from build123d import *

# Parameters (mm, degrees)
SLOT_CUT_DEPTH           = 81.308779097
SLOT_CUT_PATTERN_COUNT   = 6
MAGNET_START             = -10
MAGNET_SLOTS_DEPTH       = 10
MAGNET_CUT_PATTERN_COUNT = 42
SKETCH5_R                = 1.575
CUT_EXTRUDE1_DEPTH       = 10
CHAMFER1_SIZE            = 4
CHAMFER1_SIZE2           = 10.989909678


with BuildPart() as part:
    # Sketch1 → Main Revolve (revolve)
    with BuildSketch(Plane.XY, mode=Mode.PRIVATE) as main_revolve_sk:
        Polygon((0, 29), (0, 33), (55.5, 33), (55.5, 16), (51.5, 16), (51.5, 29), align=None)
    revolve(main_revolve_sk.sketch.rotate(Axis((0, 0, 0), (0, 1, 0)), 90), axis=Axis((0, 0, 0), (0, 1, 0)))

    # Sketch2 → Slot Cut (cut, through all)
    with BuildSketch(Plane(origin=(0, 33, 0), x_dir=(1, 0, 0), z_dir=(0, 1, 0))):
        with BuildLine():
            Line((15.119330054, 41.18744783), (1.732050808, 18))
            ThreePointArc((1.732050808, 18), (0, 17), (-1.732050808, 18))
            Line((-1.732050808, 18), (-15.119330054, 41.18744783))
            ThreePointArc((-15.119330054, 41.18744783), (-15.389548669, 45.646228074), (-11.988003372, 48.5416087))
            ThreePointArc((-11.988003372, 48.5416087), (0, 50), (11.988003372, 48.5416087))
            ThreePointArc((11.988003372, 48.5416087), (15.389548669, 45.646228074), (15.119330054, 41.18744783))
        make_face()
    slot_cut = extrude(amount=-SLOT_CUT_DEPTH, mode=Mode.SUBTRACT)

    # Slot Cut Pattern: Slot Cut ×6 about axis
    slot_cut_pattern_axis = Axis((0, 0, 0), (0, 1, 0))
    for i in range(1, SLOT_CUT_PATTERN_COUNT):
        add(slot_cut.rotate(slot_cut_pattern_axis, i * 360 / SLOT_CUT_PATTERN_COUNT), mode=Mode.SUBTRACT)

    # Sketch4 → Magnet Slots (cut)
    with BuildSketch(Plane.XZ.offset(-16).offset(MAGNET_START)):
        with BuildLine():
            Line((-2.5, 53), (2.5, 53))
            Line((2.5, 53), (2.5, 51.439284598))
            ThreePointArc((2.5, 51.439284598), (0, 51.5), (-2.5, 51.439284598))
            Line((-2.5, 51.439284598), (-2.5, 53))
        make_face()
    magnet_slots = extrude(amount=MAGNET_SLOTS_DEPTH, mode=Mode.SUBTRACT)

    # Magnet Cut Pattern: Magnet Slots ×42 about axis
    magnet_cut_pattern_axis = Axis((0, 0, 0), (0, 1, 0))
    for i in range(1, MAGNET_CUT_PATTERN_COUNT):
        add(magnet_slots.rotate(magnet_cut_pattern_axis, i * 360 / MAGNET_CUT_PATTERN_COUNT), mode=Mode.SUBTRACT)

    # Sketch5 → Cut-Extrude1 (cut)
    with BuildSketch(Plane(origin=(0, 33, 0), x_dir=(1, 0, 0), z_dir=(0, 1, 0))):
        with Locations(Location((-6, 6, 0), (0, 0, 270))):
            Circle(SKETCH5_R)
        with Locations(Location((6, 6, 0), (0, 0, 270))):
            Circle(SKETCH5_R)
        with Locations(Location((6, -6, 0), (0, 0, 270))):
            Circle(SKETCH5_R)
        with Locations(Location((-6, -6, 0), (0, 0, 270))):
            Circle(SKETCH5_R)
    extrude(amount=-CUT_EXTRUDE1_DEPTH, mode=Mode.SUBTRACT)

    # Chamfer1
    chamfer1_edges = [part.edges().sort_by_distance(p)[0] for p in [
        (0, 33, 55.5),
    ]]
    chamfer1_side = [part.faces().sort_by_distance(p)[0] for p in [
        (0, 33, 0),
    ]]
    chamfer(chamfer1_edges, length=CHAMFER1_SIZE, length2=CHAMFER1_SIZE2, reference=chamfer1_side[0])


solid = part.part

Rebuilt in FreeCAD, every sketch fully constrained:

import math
import FreeCAD as App
import Part
import Sketcher
Q = App.Units.Quantity


def edges_at(feature, points):
    """Names of the edges that pass closest to the given points."""
    edges = feature.Shape.Edges
    near = lambda p: min(range(len(edges)), key=lambda i: edges[i].distToShape(Part.Vertex(*p))[0])
    return sorted({f"Edge{near(p) + 1}" for p in points})


def add_polygon(sketch, points):
    """Adds a closed chain of lines whose ends are joined by coincident constraints."""
    first, n = sketch.GeometryCount, len(points)
    for a, b in zip(points, points[1:] + points[:1]):
        sketch.addGeometry(Part.LineSegment(App.Vector(*a, 0), App.Vector(*b, 0)), False)
    for i in range(n):
        sketch.addConstraint(Sketcher.Constraint("Coincident", first + i, 2, first + (i + 1) % n, 1))

doc = App.newDocument("Part")
params = doc.addObject("Spreadsheet::Sheet", "Params")
for row, (alias, value) in enumerate([
    ("sketch1_width", "4 mm"),
    ("sketch1_height", "13 mm"),
    ("sketch1_width2", "51.5 mm"),
    ("revolution_angle", "360 deg"),
    ("sketch2_radius", "5 mm"),
    ("sketch2_radius2", "50 mm"),
    ("sketch2_radius3", "2 mm"),
    ("sketch3_radius", "51.5 mm"),
    ("sketch3_width", "5 mm"),
    ("pocket2_length", "10 mm"),
    ("sketch4_diameter", "3.15 mm"),
    ("pocket3_length", "10 mm"),
    ("chamfer_size", "4 mm"),
    ("chamfer_size2", "10.98991 mm"),
], start=1):
    params.set(f"A{row}", alias)
    params.set(f"B{row}", "=" + value)
    params.setAlias(f"B{row}", alias)

body = doc.addObject("PartDesign::Body", "Body")

# Sketch on XY plane
sketch1 = body.newObject("Sketcher::SketchObject", "Sketch")
sketch1.AttachmentSupport = (doc.getObject("XY_Plane"), [""])
sketch1.MapMode = "FlatFace"
add_polygon(sketch1, [(0, 33), (0, 29), (51.5, 29), (51.5, 16), (55.5, 16), (55.5, 33)])  # lines 0-5
sketch1.addConstraint([
    Sketcher.Constraint("Vertical", 0),
    Sketcher.Constraint("Horizontal", 1),
    Sketcher.Constraint("Vertical", 2),
    Sketcher.Constraint("Horizontal", 3),
    Sketcher.Constraint("Vertical", 4),
    Sketcher.Constraint("Horizontal", 5),
    Sketcher.Constraint("PointOnObject", 0, 2, -2),
    Sketcher.Constraint("Equal", 3, 0),
    Sketcher.Constraint("DistanceX", 3, 1, 3, 2, 4.0),
    Sketcher.Constraint("DistanceY", 2, 2, 2, 1, 13.0),
    Sketcher.Constraint("DistanceX", 1, 1, 1, 2, 51.5),
    Sketcher.Constraint("DistanceY", -1, 1, 0, 2, 29.0),
])
sketch1.setExpression("Constraints[14]", "Params.sketch1_width")
sketch1.setExpression("Constraints[15]", "Params.sketch1_height")
sketch1.setExpression("Constraints[16]", "Params.sketch1_width2")
revolution = body.newObject("PartDesign::Revolution", "Revolution")
revolution.Profile = sketch1
revolution.ReferenceAxis = (sketch1, ["V_Axis"])
revolution.setExpression("Angle", "Params.revolution_angle")

# Sketch on XZ plane
sketch2 = body.newObject("Sketcher::SketchObject", "Sketch001")
sketch2.AttachmentSupport = (doc.getObject("XZ_Plane"), [""])
sketch2.MapMode = "FlatFace"
sketch2.AttachmentOffset = App.Placement(App.Vector(0, 0, -33), App.Rotation())
sketch2.addGeometry([
    Part.LineSegment(App.Vector(1.7, -18, 0), App.Vector(15.1, -41.2, 0)),  # 0
    Part.ArcOfCircle(Part.Circle(App.Vector(10.8, -43.7, 0), App.Vector(0, 0, 1), 5), math.radians(-76), math.radians(30)),  # 1
    Part.ArcOfCircle(Part.Circle(App.Vector(0, 0, 0), App.Vector(0, 0, 1), 50), math.radians(-104), math.radians(-76)),  # 2
    Part.ArcOfCircle(Part.Circle(App.Vector(-10.8, -43.7, 0), App.Vector(0, 0, 1), 5), math.radians(150), math.radians(256)),  # 3
    Part.LineSegment(App.Vector(-15.1, -41.2, 0), App.Vector(-1.7, -18, 0)),  # 4
    Part.ArcOfCircle(Part.Circle(App.Vector(0, -19, 0), App.Vector(0, 0, 1), 2), math.radians(30), math.radians(150)),  # 5
], False)
sketch2.addConstraint([
    Sketcher.Constraint("Tangent", 0, 2, 1, 2),
    Sketcher.Constraint("Tangent", 1, 1, 2, 2),
    Sketcher.Constraint("Tangent", 2, 1, 3, 2),
    Sketcher.Constraint("Tangent", 3, 1, 4, 1),
    Sketcher.Constraint("Tangent", 4, 2, 5, 2),
    Sketcher.Constraint("Tangent", 5, 1, 0, 1),
    Sketcher.Constraint("Coincident", 2, 3, -1, 1),
    Sketcher.Constraint("Equal", 1, 3),
    Sketcher.Constraint("Symmetric", 0, 2, 3, 1, -2),
    Sketcher.Constraint("Radius", 1, 5.0),
    Sketcher.Constraint("Radius", 2, 50.0),
    Sketcher.Constraint("Radius", 5, 2.0),
    Sketcher.Constraint("Angle", 0, Q("-60 deg")),
    Sketcher.Constraint("DistanceY", 5, 3, -1, 1, 19.0),
])
sketch2.setExpression("Constraints[9]", "Params.sketch2_radius")
sketch2.setExpression("Constraints[10]", "Params.sketch2_radius2")
sketch2.setExpression("Constraints[11]", "Params.sketch2_radius3")
pocket1 = body.newObject("PartDesign::Pocket", "Pocket")
pocket1.Profile = sketch2
pocket1.Type = "ThroughAll"
pocket1.Reversed = True
doc.recompute()

polarpattern = body.newObject("PartDesign::PolarPattern", "PolarPattern")
polarpattern.Originals = [pocket1]
polarpattern.Axis = (doc.getObject("Y_Axis"), [""])
polarpattern.Angle = 360
polarpattern.Occurrences = 6
body.Tip = polarpattern

# Sketch on XZ plane
sketch3 = body.newObject("Sketcher::SketchObject", "Sketch002")
sketch3.AttachmentSupport = (doc.getObject("XZ_Plane"), [""])
sketch3.MapMode = "FlatFace"
sketch3.AttachmentOffset = App.Placement(App.Vector(0, 0, -26), App.Rotation())
sketch3.addGeometry([
    Part.LineSegment(App.Vector(2.5, 53, 0), App.Vector(-2.5, 53, 0)),
    Part.LineSegment(App.Vector(-2.5, 53, 0), App.Vector(-2.5, 51.4, 0)),
    Part.ArcOfCircle(Part.Circle(App.Vector(0, 0, 0), App.Vector(0, 0, 1), 51.5), math.radians(87.22), math.radians(92.78)),
    Part.LineSegment(App.Vector(2.5, 51.4, 0), App.Vector(2.5, 53, 0)),
], False)
sketch3.addConstraint([
    Sketcher.Constraint("Coincident", 0, 2, 1, 1),
    Sketcher.Constraint("Coincident", 1, 2, 2, 2),
    Sketcher.Constraint("Coincident", 2, 1, 3, 1),
    Sketcher.Constraint("Coincident", 3, 2, 0, 1),
    Sketcher.Constraint("Horizontal", 0),
    Sketcher.Constraint("Vertical", 1),
    Sketcher.Constraint("Vertical", 3),
    Sketcher.Constraint("Coincident", 2, 3, -1, 1),
    Sketcher.Constraint("Horizontal", 1, 2, 2, 1),
    Sketcher.Constraint("Radius", 2, 51.5),
    Sketcher.Constraint("DistanceX", 0, 2, 0, 1, 5.0),
    Sketcher.Constraint("DistanceY", -1, 1, 0, 2, 53.0),
])
sketch3.setExpression("Constraints[9]", "Params.sketch3_radius")
sketch3.setExpression("Constraints[10]", "Params.sketch3_width")
pocket2 = body.newObject("PartDesign::Pocket", "Pocket001")
pocket2.Profile = sketch3
pocket2.setExpression("Length", "Params.pocket2_length")
pocket2.Reversed = True
doc.recompute()

polarpattern2 = body.newObject("PartDesign::PolarPattern", "PolarPattern001")
polarpattern2.Originals = [pocket2]
polarpattern2.Axis = (doc.getObject("Y_Axis"), [""])
polarpattern2.Angle = 360
polarpattern2.Occurrences = 42
body.Tip = polarpattern2

# Sketch on XZ plane
sketch4 = body.newObject("Sketcher::SketchObject", "Sketch003")
sketch4.AttachmentSupport = (doc.getObject("XZ_Plane"), [""])
sketch4.MapMode = "FlatFace"
sketch4.AttachmentOffset = App.Placement(App.Vector(0, 0, -33), App.Rotation())
sketch4.addGeometry([
    Part.Circle(App.Vector(-6, -6, 0), App.Vector(0, 0, 1), 1.6),
    Part.Circle(App.Vector(6, -6, 0), App.Vector(0, 0, 1), 1.6),
    Part.Circle(App.Vector(6, 6, 0), App.Vector(0, 0, 1), 1.6),
    Part.Circle(App.Vector(-6, 6, 0), App.Vector(0, 0, 1), 1.6),
], False)
sketch4.addConstraint([
    Sketcher.Constraint("Equal", 0, 1),
    Sketcher.Constraint("Equal", 1, 2),
    Sketcher.Constraint("Equal", 2, 3),
    Sketcher.Constraint("Symmetric", 0, 3, 2, 3, -1, 1),
    Sketcher.Constraint("Symmetric", 1, 3, 3, 3, -1, 1),
    Sketcher.Constraint("Symmetric", 0, 3, 1, 3, -2),
    Sketcher.Constraint("Diameter", 0, 3.15),
    Sketcher.Constraint("DistanceX", 0, 3, -1, 1, 6.0),
    Sketcher.Constraint("DistanceY", 0, 3, -1, 1, 6.0),
])
sketch4.setExpression("Constraints[6]", "Params.sketch4_diameter")
pocket3 = body.newObject("PartDesign::Pocket", "Pocket002")
pocket3.Profile = sketch4
pocket3.setExpression("Length", "Params.pocket3_length")
pocket3.Reversed = True
doc.recompute()

chamfer = body.newObject("PartDesign::Chamfer", "Chamfer")
chamfer.Base = (pocket3, edges_at(pocket3, [(0, 33, 55.5)]))
chamfer.ChamferType = "Two distances"
chamfer.setExpression("Size", "Params.chamfer_size")
chamfer.setExpression("Size2", "Params.chamfer_size2")

doc.recompute()
